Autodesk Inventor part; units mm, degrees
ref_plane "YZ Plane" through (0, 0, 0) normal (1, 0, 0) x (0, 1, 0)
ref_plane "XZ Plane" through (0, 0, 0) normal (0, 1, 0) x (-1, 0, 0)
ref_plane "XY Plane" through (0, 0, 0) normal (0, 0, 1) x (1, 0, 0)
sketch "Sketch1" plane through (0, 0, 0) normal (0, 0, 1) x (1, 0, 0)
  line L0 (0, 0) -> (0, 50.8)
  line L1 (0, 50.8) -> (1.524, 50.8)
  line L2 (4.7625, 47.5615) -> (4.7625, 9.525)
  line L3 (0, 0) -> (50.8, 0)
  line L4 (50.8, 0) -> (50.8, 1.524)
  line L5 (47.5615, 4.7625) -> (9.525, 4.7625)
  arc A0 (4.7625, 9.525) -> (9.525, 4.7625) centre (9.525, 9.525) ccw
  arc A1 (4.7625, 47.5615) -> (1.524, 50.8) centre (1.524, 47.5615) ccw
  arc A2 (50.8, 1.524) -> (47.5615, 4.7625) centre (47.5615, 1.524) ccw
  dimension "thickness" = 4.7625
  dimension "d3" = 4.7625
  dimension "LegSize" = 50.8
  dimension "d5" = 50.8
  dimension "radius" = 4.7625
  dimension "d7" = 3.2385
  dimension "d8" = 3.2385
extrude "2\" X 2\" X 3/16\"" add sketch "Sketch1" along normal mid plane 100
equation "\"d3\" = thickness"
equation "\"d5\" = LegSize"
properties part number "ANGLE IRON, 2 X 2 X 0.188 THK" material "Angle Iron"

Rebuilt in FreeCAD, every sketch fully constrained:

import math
import FreeCAD as App
import Part
import Sketcher

V = App.Vector
Q = App.Units.Quantity

doc = App.newDocument("Part")
body = doc.addObject("PartDesign::Body", "Body")

# Sketch on XY plane
sketch1 = doc.addObject("Sketcher::SketchObject", "Sketch")
body.addObject(sketch1)
sketch1.AttachmentSupport = (doc.XY_Plane, [""])
sketch1.MapMode = "FlatFace"
sketch1.addGeometry([
    Part.LineSegment(V(0, 50.8, 0), V(0, 0, 0)),  # 0
    Part.LineSegment(V(0, 0, 0), V(50.8, 0, 0)),  # 1
    Part.LineSegment(V(50.8, 0, 0), V(50.8, 1.524, 0)),  # 2
    Part.ArcOfCircle(Part.Circle(V(47.5615, 1.524, 0), V(0, 0, 1), 3.2385), math.radians(0), math.radians(90)),  # 3
    Part.LineSegment(V(47.5615, 4.7625, 0), V(9.525, 4.7625, 0)),  # 4
    Part.ArcOfCircle(Part.Circle(V(9.525, 9.525, 0), V(0, 0, 1), 4.7625), math.radians(180), math.radians(270)),  # 5
    Part.LineSegment(V(4.7625, 9.525, 0), V(4.7625, 47.5615, 0)),  # 6
    Part.ArcOfCircle(Part.Circle(V(1.524, 47.5615, 0), V(0, 0, 1), 3.2385), math.radians(0), math.radians(90)),  # 7
    Part.LineSegment(V(1.524, 50.8, 0), V(0, 50.8, 0)),  # 8
], False)
sketch1.addConstraint([
    Sketcher.Constraint("Coincident", 0, 2, 1, 1),
    Sketcher.Constraint("Coincident", 1, 2, 2, 1),
    Sketcher.Constraint("Tangent", 2, 2, 3, 1),
    Sketcher.Constraint("Tangent", 3, 2, 4, 1),
    Sketcher.Constraint("Tangent", 4, 2, 5, 2),
    Sketcher.Constraint("Tangent", 5, 1, 6, 1),
    Sketcher.Constraint("Tangent", 6, 2, 7, 1),
    Sketcher.Constraint("Tangent", 7, 2, 8, 1),
    Sketcher.Constraint("Coincident", 8, 2, 0, 1),
    Sketcher.Constraint("Vertical", 0),
    Sketcher.Constraint("Horizontal", 1),
    Sketcher.Constraint("Vertical", 2),
    Sketcher.Constraint("Horizontal", 4),
    Sketcher.Constraint("Vertical", 6),
    Sketcher.Constraint("Horizontal", 8),
    Sketcher.Constraint("Coincident", 0, 2, -1, 1),
    Sketcher.Constraint("Equal", 3, 7),
    Sketcher.Constraint("Equal", 1, 0),
    Sketcher.Constraint("Equal", 8, 2),
    Sketcher.Constraint("DistanceX", 1, 1, 1, 2, Q("2 in")),
    Sketcher.Constraint("Radius", 5, Q("0.1875 in")),
    Sketcher.Constraint("Radius", 3, Q("0.1275 in")),
    Sketcher.Constraint("DistanceY", -1, 1, 3, 2, Q("0.1875 in")),
])
pad1 = doc.addObject("PartDesign::Pad", "Pad")
body.addObject(pad1)
pad1.Profile = sketch1
pad1.Length = Q("3.9370079 in")
pad1.Midplane = True

doc.recompute()
